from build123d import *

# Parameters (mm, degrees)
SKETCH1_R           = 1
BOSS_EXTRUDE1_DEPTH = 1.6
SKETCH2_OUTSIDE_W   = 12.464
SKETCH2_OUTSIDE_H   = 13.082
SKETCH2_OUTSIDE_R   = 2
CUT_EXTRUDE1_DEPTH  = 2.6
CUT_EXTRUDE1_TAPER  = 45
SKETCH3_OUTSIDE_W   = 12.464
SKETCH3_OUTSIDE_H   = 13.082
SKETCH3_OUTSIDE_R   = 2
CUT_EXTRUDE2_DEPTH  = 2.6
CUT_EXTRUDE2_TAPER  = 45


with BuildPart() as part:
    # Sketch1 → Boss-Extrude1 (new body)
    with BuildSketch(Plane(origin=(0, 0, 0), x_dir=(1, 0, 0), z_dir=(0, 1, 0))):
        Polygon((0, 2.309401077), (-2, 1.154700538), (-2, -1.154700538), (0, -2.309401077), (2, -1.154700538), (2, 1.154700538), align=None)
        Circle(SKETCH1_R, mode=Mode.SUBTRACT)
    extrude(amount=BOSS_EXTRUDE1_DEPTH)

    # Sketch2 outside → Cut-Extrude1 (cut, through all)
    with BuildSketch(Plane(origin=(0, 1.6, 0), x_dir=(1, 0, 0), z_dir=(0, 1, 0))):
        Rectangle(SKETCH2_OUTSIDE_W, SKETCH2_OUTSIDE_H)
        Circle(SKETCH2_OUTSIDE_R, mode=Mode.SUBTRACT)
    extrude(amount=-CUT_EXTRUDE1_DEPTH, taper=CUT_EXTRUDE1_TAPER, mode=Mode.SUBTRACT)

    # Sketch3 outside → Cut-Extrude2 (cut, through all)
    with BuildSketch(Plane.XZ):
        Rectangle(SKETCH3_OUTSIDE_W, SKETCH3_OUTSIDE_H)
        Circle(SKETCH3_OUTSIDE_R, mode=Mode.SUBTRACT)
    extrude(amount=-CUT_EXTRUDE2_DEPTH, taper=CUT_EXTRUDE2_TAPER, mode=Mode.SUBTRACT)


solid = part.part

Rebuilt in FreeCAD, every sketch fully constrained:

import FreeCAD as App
import Part
import Sketcher
from FreeCAD import Vector
Q = App.Units.Quantity


def add_polygon(sketch, points):
    """Adds a closed chain of lines whose ends are joined by coincident constraints."""
    first, n = sketch.GeometryCount, len(points)
    for a, b in zip(points, points[1:] + points[:1]):
        sketch.addGeometry(Part.LineSegment(App.Vector(*a, 0), App.Vector(*b, 0)), False)
    for i in range(n):
        sketch.addConstraint(Sketcher.Constraint("Coincident", first + i, 2, first + (i + 1) % n, 1))

doc = App.newDocument("Part")
params = doc.addObject("Spreadsheet::Sheet", "Params")
for row, (alias, value) in enumerate([
    ("sketch1_diameter", "2 mm"),
    ("pad1_length", "1.6 mm"),
    ("sketch2_diameter", "4 mm"),
    ("pocket1_length", "2.6 mm"),
    ("pocket1_taper", "45 deg"),
    ("sketch3_diameter", "4 mm"),
    ("pocket2_length", "2.6 mm"),
    ("pocket2_taper", "45 deg"),
], start=1):
    params.set(f"A{row}", alias)
    params.set(f"B{row}", "=" + value)
    params.setAlias(f"B{row}", alias)

body = doc.addObject("PartDesign::Body", "Body")

sketch1 = body.newObject("Sketcher::SketchObject", "Sketch")
sketch1.AttachmentSupport = (doc.getObject("XZ_Plane"), [""])
sketch1.MapMode = "FlatFace"
add_polygon(sketch1, [(0, -2.3), (-2, -1.2), (-2, 1.2), (0, 2.3), (2, 1.2), (2, -1.2)])
sketch1.addGeometry(Part.Circle(Vector(0, 0, 0), Vector(0, 0, 1), 1), False)
sketch1.addConstraint([
    Sketcher.Constraint("Vertical", 1),
    Sketcher.Constraint("Vertical", 4),
    Sketcher.Constraint("Coincident", 6, 3, -1, 1),
    Sketcher.Constraint("Symmetric", 0, 2, 3, 2, -1, 1),
    Sketcher.Constraint("Symmetric", 2, 2, 5, 2, -1, 1),
    Sketcher.Constraint("PointOnObject", 2, 2, -2),
    Sketcher.Constraint("Parallel", 2, 5),
    Sketcher.Constraint("Horizontal", 1, 2, 3, 2),
    Sketcher.Constraint("Diameter", 6, Q("2 mm")),
    Sketcher.Constraint("Angle", 0, Q("150 deg")),
    Sketcher.Constraint("DistanceX", 0, 2, -1, 1, Q("2 mm")),
    Sketcher.Constraint("DistanceY", 1, 1, 1, 2, Q("2.309401 mm")),
])
sketch1.setExpression("Constraints[14]", "Params.sketch1_diameter")
pad1 = body.newObject("PartDesign::Pad", "Pad")
pad1.Profile = sketch1
pad1.setExpression("Length", "Params.pad1_length")
pad1.Reversed = True

sketch2 = body.newObject("Sketcher::SketchObject", "Sketch001")
sketch2.AttachmentSupport = (doc.getObject("XZ_Plane"), [""])
sketch2.MapMode = "FlatFace"
sketch2.AttachmentOffset = App.Placement(Vector(0, 0, -1.6), App.Rotation())
add_polygon(sketch2, [(-6.2, -6.5), (-6.2, 6.5), (6.2, 6.5), (6.2, -6.5)])
sketch2.addGeometry(Part.Circle(Vector(0, 0, 0), Vector(0, 0, 1), 2), False)
sketch2.addConstraint([
    Sketcher.Constraint("Vertical", 0),
    Sketcher.Constraint("Horizontal", 1),
    Sketcher.Constraint("Vertical", 2),
    Sketcher.Constraint("Horizontal", 3),
    Sketcher.Constraint("Coincident", 4, 3, -1, 1),
    Sketcher.Constraint("Symmetric", 0, 2, 2, 2, -1, 1),
    Sketcher.Constraint("Diameter", 4, Q("4 mm")),
    Sketcher.Constraint("DistanceX", 1, 1, 1, 2, Q("12.464 mm")),
    Sketcher.Constraint("DistanceY", 0, 1, 0, 2, Q("13.082 mm")),
])
sketch2.setExpression("Constraints[10]", "Params.sketch2_diameter")
pocket1 = body.newObject("PartDesign::Pocket", "Pocket")
pocket1.Profile = sketch2
pocket1.setExpression("Length", "Params.pocket1_length")
pocket1.Reversed = True
pocket1.setExpression("TaperAngle", "Params.pocket1_taper")

sketch3 = body.newObject("Sketcher::SketchObject", "Sketch002")
sketch3.AttachmentSupport = (doc.getObject("XZ_Plane"), [""])
sketch3.MapMode = "FlatFace"
add_polygon(sketch3, [(-6.2, 6.5), (-6.2, -6.5), (6.2, -6.5), (6.2, 6.5)])
sketch3.addGeometry(Part.Circle(Vector(0, 0, 0), Vector(0, 0, 1), 2), False)
sketch3.addConstraint([
    Sketcher.Constraint("Vertical", 0),
    Sketcher.Constraint("Horizontal", 1),
    Sketcher.Constraint("Vertical", 2),
    Sketcher.Constraint("Horizontal", 3),
    Sketcher.Constraint("Coincident", 4, 3, -1, 1),
    Sketcher.Constraint("Symmetric", 0, 2, 2, 2, -1, 1),
    Sketcher.Constraint("Diameter", 4, Q("4 mm")),
    Sketcher.Constraint("DistanceX", 1, 1, 1, 2, Q("12.464 mm")),
    Sketcher.Constraint("DistanceY", 0, 2, 0, 1, Q("13.082 mm")),
])
sketch3.setExpression("Constraints[10]", "Params.sketch3_diameter")
pocket2 = body.newObject("PartDesign::Pocket", "Pocket001")
pocket2.Profile = sketch3
pocket2.setExpression("Length", "Params.pocket2_length")
pocket2.setExpression("TaperAngle", "Params.pocket2_taper")

doc.recompute()
